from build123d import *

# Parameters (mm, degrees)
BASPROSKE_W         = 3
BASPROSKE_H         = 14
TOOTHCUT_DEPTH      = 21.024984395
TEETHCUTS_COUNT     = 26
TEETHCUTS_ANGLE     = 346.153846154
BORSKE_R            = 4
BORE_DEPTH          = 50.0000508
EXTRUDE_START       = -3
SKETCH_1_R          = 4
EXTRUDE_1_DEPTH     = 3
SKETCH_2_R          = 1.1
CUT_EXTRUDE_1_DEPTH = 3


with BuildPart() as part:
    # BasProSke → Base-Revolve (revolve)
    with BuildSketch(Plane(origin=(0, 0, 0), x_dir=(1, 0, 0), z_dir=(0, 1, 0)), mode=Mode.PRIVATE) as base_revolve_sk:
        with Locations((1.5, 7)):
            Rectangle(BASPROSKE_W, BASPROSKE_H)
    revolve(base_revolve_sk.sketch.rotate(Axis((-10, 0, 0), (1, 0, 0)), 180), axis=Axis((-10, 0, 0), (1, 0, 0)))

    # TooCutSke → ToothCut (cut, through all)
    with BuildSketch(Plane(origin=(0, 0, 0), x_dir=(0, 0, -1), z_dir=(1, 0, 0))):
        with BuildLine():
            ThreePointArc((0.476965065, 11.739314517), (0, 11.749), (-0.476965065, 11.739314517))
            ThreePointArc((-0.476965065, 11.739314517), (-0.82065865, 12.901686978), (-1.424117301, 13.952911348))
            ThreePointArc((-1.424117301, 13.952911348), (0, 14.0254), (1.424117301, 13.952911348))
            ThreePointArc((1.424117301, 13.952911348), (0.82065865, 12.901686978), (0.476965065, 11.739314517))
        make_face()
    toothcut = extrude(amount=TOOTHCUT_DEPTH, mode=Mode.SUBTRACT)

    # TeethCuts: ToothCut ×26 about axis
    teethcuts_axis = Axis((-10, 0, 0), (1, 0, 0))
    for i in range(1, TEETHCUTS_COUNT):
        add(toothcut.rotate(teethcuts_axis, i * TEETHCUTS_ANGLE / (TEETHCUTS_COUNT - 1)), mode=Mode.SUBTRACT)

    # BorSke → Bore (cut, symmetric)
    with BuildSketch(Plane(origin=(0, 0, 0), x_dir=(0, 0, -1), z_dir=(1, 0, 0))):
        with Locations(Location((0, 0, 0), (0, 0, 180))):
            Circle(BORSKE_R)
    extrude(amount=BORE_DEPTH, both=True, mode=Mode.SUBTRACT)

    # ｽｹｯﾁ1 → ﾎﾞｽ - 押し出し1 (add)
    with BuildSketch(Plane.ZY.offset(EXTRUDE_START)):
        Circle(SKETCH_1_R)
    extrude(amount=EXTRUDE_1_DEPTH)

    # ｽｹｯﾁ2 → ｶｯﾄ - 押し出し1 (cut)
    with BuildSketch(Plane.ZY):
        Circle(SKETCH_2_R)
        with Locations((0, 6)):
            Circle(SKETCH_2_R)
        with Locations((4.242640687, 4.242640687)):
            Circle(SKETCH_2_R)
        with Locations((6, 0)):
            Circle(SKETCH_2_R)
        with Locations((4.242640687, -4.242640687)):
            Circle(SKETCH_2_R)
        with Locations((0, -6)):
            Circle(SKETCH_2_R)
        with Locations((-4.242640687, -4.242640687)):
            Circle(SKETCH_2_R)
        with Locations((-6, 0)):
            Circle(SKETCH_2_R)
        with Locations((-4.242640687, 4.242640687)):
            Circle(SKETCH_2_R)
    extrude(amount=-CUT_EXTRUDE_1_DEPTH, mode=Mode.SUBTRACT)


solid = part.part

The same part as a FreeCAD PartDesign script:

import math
import FreeCAD as App
import Part
import Sketcher
from FreeCAD import Vector
Q = App.Units.Quantity

doc = App.newDocument("Part")
body = doc.addObject("PartDesign::Body", "Body")

# Sketch on XZ plane
sketch1 = body.newObject("Sketcher::SketchObject", "Sketch")
sketch1.AttachmentSupport = (doc.getObject("XZ_Plane"), [""])
sketch1.MapMode = "FlatFace"
sketch1.addGeometry([
    Part.LineSegment(Vector(0, -14, 0), Vector(0, 0, 0)),
    Part.LineSegment(Vector(0, 0, 0), Vector(3, 0, 0)),
    Part.LineSegment(Vector(3, 0, 0), Vector(3, -14, 0)),
    Part.LineSegment(Vector(3, -14, 0), Vector(0, -14, 0)),
], False)
sketch1.addConstraint([
    Sketcher.Constraint("Coincident", 0, 2, 1, 1),
    Sketcher.Constraint("Coincident", 1, 2, 2, 1),
    Sketcher.Constraint("Coincident", 2, 2, 3, 1),
    Sketcher.Constraint("Coincident", 3, 2, 0, 1),
    Sketcher.Constraint("Vertical", 0),
    Sketcher.Constraint("Horizontal", 1),
    Sketcher.Constraint("Vertical", 2),
    Sketcher.Constraint("Horizontal", 3),
    Sketcher.Constraint("Coincident", 0, 2, -1, 1),
    Sketcher.Constraint("DistanceX", 1, 1, 1, 2, Q("3 mm")),
    Sketcher.Constraint("DistanceY", 0, 1, 0, 2, Q("14 mm")),
])
revolution = body.newObject("PartDesign::Revolution", "Revolution")
revolution.Profile = sketch1
revolution.ReferenceAxis = (sketch1, ["H_Axis"])
revolution.Angle = 360

# Sketch on YZ plane
sketch2 = body.newObject("Sketcher::SketchObject", "Sketch001")
sketch2.AttachmentSupport = (doc.getObject("YZ_Plane"), [""])
sketch2.MapMode = "FlatFace"
sketch2.addGeometry([
    Part.ArcOfCircle(Part.Circle(Vector(0, 0, 0), Vector(0, 0, 1), 11.7), math.radians(-2.33), math.radians(2.33)),
    Part.ArcOfCircle(Part.Circle(Vector(10.9, -5.6, 0), Vector(0, 0, 1), 5.2), math.radians(53), math.radians(80)),
    Part.ArcOfCircle(Part.Circle(Vector(0, 0, 0), Vector(0, 0, 1), 14), math.radians(-5.83), math.radians(5.83)),
    Part.ArcOfCircle(Part.Circle(Vector(10.9, 5.6, 0), Vector(0, 0, 1), 5.2), math.radians(-80), math.radians(-53)),
], False)
sketch2.addConstraint([
    Sketcher.Constraint("Coincident", 0, 1, 1, 2),
    Sketcher.Constraint("Coincident", 1, 1, 2, 1),
    Sketcher.Constraint("Coincident", 2, 2, 3, 2),
    Sketcher.Constraint("Coincident", 3, 1, 0, 2),
    Sketcher.Constraint("Coincident", 0, 3, -1, 1),
    Sketcher.Constraint("Coincident", 2, 3, -1, 1),
    Sketcher.Constraint("Equal", 1, 3),
    Sketcher.Constraint("Symmetric", 1, 3, 3, 3, -1),
    Sketcher.Constraint("Radius", 1, Q("5.2 mm")),
    Sketcher.Constraint("Radius", 0, Q("11.749 mm")),
    Sketcher.Constraint("Radius", 2, Q("14.0254 mm")),
    Sketcher.Constraint("DistanceY", 1, 3, -1, 1, Q("5.60141 mm")),
    Sketcher.Constraint("DistanceX", -1, 1, 1, 1, Q("13.952911 mm")),
])
pocket1 = body.newObject("PartDesign::Pocket", "Pocket")
pocket1.Profile = sketch2
pocket1.Type = "ThroughAll"
pocket1.Reversed = True
doc.recompute()

polarpattern = body.newObject("PartDesign::PolarPattern", "PolarPattern")
polarpattern.Originals = [pocket1]
polarpattern.Axis = (doc.getObject("X_Axis"), [""])
polarpattern.Angle = 360
polarpattern.Occurrences = 26
body.Tip = polarpattern

# Sketch on YZ plane
sketch3 = body.newObject("Sketcher::SketchObject", "Sketch002")
sketch3.AttachmentSupport = (doc.getObject("YZ_Plane"), [""])
sketch3.MapMode = "FlatFace"
sketch3.addGeometry(Part.Circle(Vector(0, 0, 0), Vector(0, 0, 1), 4), False)
sketch3.addConstraint([
    Sketcher.Constraint("Coincident", 0, 3, -1, 1),
    Sketcher.Constraint("Diameter", 0, Q("8 mm")),
])
pocket2 = body.newObject("PartDesign::Pocket", "Pocket001")
pocket2.Profile = sketch3
pocket2.Length = 100.000102
pocket2.Midplane = True

# Sketch on YZ plane
sketch4 = body.newObject("Sketcher::SketchObject", "Sketch003")
sketch4.AttachmentSupport = (doc.getObject("YZ_Plane"), [""])
sketch4.MapMode = "FlatFace"
sketch4.AttachmentOffset = App.Placement(Vector(0, 0, 3), App.Rotation())
sketch4.addGeometry(Part.Circle(Vector(0, 0, 0), Vector(0, 0, 1), 4), False)
sketch4.addConstraint([
    Sketcher.Constraint("Coincident", 0, 3, -1, 1),
    Sketcher.Constraint("Diameter", 0, Q("8 mm")),
])
pad1 = body.newObject("PartDesign::Pad", "Pad")
pad1.Profile = sketch4
pad1.Length = 3
pad1.Reversed = True

# Sketch on YZ plane
sketch5 = body.newObject("Sketcher::SketchObject", "Sketch004")
sketch5.AttachmentSupport = (doc.getObject("YZ_Plane"), [""])
sketch5.MapMode = "FlatFace"
sketch5.addGeometry([
    Part.Circle(Vector(0, 0, 0), Vector(0, 0, 1), 1.1),  # 0
    Part.Circle(Vector(6, 0, 0), Vector(0, 0, 1), 1.1),  # 1
    Part.Circle(Vector(4.2, 4.2, 0), Vector(0, 0, 1), 1.1),  # 2
    Part.Circle(Vector(0, 6, 0), Vector(0, 0, 1), 1.1),  # 3
    Part.Circle(Vector(-4.2, 4.2, 0), Vector(0, 0, 1), 1.1),  # 4
    Part.Circle(Vector(-6, 0, 0), Vector(0, 0, 1), 1.1),  # 5
    Part.Circle(Vector(-4.2, -4.2, 0), Vector(0, 0, 1), 1.1),  # 6
    Part.Circle(Vector(0, -6, 0), Vector(0, 0, 1), 1.1),  # 7
    Part.Circle(Vector(4.2, -4.2, 0), Vector(0, 0, 1), 1.1),  # 8
], False)
sketch5.addConstraint([
    Sketcher.Constraint("Coincident", 0, 3, -1, 1),
    Sketcher.Constraint("Equal", 0, 1),
    Sketcher.Constraint("Equal", 1, 2),
    Sketcher.Constraint("Equal", 2, 3),
    Sketcher.Constraint("Equal", 3, 4),
    Sketcher.Constraint("Equal", 4, 5),
    Sketcher.Constraint("Equal", 5, 6),
    Sketcher.Constraint("Equal", 6, 7),
    Sketcher.Constraint("Equal", 7, 8),
    Sketcher.Constraint("Symmetric", 1, 3, 5, 3, -1, 1),
    Sketcher.Constraint("Symmetric", 2, 3, 6, 3, -1, 1),
    Sketcher.Constraint("Symmetric", 3, 3, 7, 3, -1, 1),
    Sketcher.Constraint("Symmetric", 4, 3, 8, 3, -1, 1),
    Sketcher.Constraint("Symmetric", 2, 3, 4, 3, -2),
    Sketcher.Constraint("PointOnObject", 1, 3, -1),
    Sketcher.Constraint("PointOnObject", 3, 3, -2),
    Sketcher.Constraint("Diameter", 0, Q("2.2 mm")),
    Sketcher.Constraint("DistanceX", -1, 1, 1, 3, Q("6 mm")),
    Sketcher.Constraint("DistanceY", -1, 1, 3, 3, Q("6 mm")),
    Sketcher.Constraint("DistanceX", -1, 1, 2, 3, Q("4.242641 mm")),
    Sketcher.Constraint("DistanceY", -1, 1, 2, 3, Q("4.242641 mm")),
])
pocket3 = body.newObject("PartDesign::Pocket", "Pocket002")
pocket3.Profile = sketch5
pocket3.Length = 3
pocket3.Reversed = True

doc.recompute()
